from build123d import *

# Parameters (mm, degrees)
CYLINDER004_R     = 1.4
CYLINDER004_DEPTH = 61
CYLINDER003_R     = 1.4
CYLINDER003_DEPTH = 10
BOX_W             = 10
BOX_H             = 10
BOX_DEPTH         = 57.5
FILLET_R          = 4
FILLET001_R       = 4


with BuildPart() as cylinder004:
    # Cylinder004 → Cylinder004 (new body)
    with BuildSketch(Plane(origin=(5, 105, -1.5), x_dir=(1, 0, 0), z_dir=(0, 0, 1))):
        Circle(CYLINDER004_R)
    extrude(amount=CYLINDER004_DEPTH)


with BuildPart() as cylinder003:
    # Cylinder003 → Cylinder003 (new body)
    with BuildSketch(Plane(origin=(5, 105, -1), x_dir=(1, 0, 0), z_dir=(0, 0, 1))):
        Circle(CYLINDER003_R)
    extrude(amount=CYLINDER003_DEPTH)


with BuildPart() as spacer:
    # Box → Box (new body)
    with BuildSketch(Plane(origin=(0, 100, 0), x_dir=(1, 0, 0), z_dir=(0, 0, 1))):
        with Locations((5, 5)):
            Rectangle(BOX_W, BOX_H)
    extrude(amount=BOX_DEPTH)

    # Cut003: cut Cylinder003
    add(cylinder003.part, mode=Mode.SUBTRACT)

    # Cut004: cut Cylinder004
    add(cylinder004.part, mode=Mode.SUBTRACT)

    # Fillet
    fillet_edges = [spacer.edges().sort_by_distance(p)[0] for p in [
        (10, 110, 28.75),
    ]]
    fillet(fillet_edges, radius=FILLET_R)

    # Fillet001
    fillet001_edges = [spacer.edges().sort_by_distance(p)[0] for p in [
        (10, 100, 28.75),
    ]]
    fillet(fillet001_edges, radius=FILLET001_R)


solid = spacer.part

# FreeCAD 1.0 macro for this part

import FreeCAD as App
import Part
import Sketcher
from FreeCAD import Vector


def edges_at(feature, points):
    """Names of the edges that pass closest to the given points."""
    edges = feature.Shape.Edges
    near = lambda p: min(range(len(edges)), key=lambda i: edges[i].distToShape(Part.Vertex(*p))[0])
    return sorted({f"Edge{near(p) + 1}" for p in points})

doc = App.newDocument("Part")
body = doc.addObject("PartDesign::Body", "Body")

# Sketch on XY plane
sketch1 = body.newObject("Sketcher::SketchObject", "Sketch")
sketch1.AttachmentSupport = (doc.getObject("XY_Plane"), [""])
sketch1.MapMode = "FlatFace"
sketch1.AttachmentOffset = App.Placement(Vector(0, 0, -1.5), App.Rotation())
sketch1.addGeometry(Part.Circle(Vector(5, 105, 0), Vector(0, 0, 1), 1.4), False)
sketch1.addConstraint(Sketcher.Constraint("Diameter", 0, 2.8))
sketch1.addConstraint(Sketcher.Constraint("DistanceX", -1, 1, 0, 3, 5.0))
sketch1.addConstraint(Sketcher.Constraint("DistanceY", -1, 1, 0, 3, 105.0))
pad1 = body.newObject("PartDesign::Pad", "Pad")
pad1.Profile = sketch1
pad1.Length = 61
body2 = doc.addObject("PartDesign::Body", "Body001")

# Sketch on XY plane
sketch2 = body2.newObject("Sketcher::SketchObject", "Sketch001")
sketch2.AttachmentSupport = (doc.getObject("XY_Plane001"), [""])
sketch2.MapMode = "FlatFace"
sketch2.AttachmentOffset = App.Placement(Vector(0, 0, -1), App.Rotation())
sketch2.addGeometry(Part.Circle(Vector(5, 105, 0), Vector(0, 0, 1), 1.4), False)
sketch2.addConstraint(Sketcher.Constraint("Diameter", 0, 2.8))
sketch2.addConstraint(Sketcher.Constraint("DistanceX", -1, 1, 0, 3, 5.0))
sketch2.addConstraint(Sketcher.Constraint("DistanceY", -1, 1, 0, 3, 105.0))
pad2 = body2.newObject("PartDesign::Pad", "Pad001")
pad2.Profile = sketch2
pad2.Length = 10
body3 = doc.addObject("PartDesign::Body", "Body002")

# Sketch on XY plane
sketch3 = body3.newObject("Sketcher::SketchObject", "Sketch002")
sketch3.AttachmentSupport = (doc.getObject("XY_Plane002"), [""])
sketch3.MapMode = "FlatFace"
sketch3.addGeometry(Part.LineSegment(Vector(0, 110, 0), Vector(0, 100, 0)), False)
sketch3.addGeometry(Part.LineSegment(Vector(0, 100, 0), Vector(10, 100, 0)), False)
sketch3.addGeometry(Part.LineSegment(Vector(10, 100, 0), Vector(10, 110, 0)), False)
sketch3.addGeometry(Part.LineSegment(Vector(10, 110, 0), Vector(0, 110, 0)), False)
sketch3.addConstraint(Sketcher.Constraint("Coincident", 0, 2, 1, 1))
sketch3.addConstraint(Sketcher.Constraint("Coincident", 1, 2, 2, 1))
sketch3.addConstraint(Sketcher.Constraint("Coincident", 2, 2, 3, 1))
sketch3.addConstraint(Sketcher.Constraint("Coincident", 3, 2, 0, 1))
sketch3.addConstraint(Sketcher.Constraint("Vertical", 0))
sketch3.addConstraint(Sketcher.Constraint("Horizontal", 1))
sketch3.addConstraint(Sketcher.Constraint("Vertical", 2))
sketch3.addConstraint(Sketcher.Constraint("Horizontal", 3))
sketch3.addConstraint(Sketcher.Constraint("PointOnObject", 0, 2, -2))
sketch3.addConstraint(Sketcher.Constraint("Equal", 3, 0))
sketch3.addConstraint(Sketcher.Constraint("DistanceX", 1, 1, 1, 2, 10.0))
sketch3.addConstraint(Sketcher.Constraint("DistanceY", -1, 1, 0, 2, 100.0))
pad3 = body3.newObject("PartDesign::Pad", "Pad002")
pad3.Profile = sketch3
pad3.Length = 57.5
doc.recompute()

boolean = body3.newObject("PartDesign::Boolean", "Boolean")
boolean.Type = "Cut"
boolean.addObjects([body2])
doc.recompute()

boolean2 = body3.newObject("PartDesign::Boolean", "Boolean001")
boolean2.Type = "Cut"
boolean2.addObjects([body])
doc.recompute()

fillet = body3.newObject("PartDesign::Fillet", "Fillet")
fillet.Base = (boolean2, edges_at(boolean2, [(10, 110, 28.75)]))
fillet.Radius = 4
doc.recompute()

fillet2 = body3.newObject("PartDesign::Fillet", "Fillet001")
fillet2.Base = (fillet, edges_at(fillet, [(10, 100, 28.75)]))
fillet2.Radius = 4

doc.recompute()
